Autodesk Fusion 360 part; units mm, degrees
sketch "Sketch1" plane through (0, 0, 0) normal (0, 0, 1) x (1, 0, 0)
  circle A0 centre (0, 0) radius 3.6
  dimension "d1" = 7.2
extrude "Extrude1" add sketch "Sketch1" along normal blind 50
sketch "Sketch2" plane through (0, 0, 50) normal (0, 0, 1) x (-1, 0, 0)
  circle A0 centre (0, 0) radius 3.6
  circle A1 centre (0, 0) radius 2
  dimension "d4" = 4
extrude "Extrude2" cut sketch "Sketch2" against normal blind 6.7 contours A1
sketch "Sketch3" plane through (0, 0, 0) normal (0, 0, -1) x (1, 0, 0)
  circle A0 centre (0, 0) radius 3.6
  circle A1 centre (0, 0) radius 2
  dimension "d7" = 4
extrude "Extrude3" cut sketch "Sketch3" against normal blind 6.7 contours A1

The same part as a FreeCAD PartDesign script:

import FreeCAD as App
import Part
import Sketcher
from FreeCAD import Vector

doc = App.newDocument("Part")
params = doc.addObject("Spreadsheet::Sheet", "Params")
for row, (alias, value) in enumerate([
    ("sketch1_diameter", "7.2 mm"),
    ("pad1_length", "50 mm"),
    ("sketch2_diameter", "4 mm"),
    ("pocket1_length", "6.7 mm"),
    ("sketch3_diameter", "4 mm"),
    ("pocket2_length", "6.7 mm"),
], start=1):
    params.set(f"A{row}", alias)
    params.set(f"B{row}", "=" + value)
    params.setAlias(f"B{row}", alias)

body = doc.addObject("PartDesign::Body", "Body")

sketch1 = body.newObject("Sketcher::SketchObject", "Sketch")
sketch1.AttachmentSupport = (doc.getObject("XY_Plane"), [""])
sketch1.MapMode = "FlatFace"
sketch1.addGeometry(Part.Circle(Vector(0, 0, 0), Vector(0, 0, 1), 3.6), False)
sketch1.addConstraint([
    Sketcher.Constraint("Coincident", 0, 3, -1, 1),
    Sketcher.Constraint("Diameter", 0, 7.2),
])
sketch1.setExpression("Constraints[1]", "Params.sketch1_diameter")
pad1 = body.newObject("PartDesign::Pad", "Pad")
pad1.Profile = sketch1
pad1.setExpression("Length", "Params.pad1_length")

sketch2 = body.newObject("Sketcher::SketchObject", "Sketch001")
sketch2.AttachmentSupport = (doc.getObject("XY_Plane"), [""])
sketch2.MapMode = "FlatFace"
sketch2.AttachmentOffset = App.Placement(Vector(0, 0, 50), App.Rotation())
sketch2.addGeometry(Part.Circle(Vector(0, 0, 0), Vector(0, 0, 1), 2), False)
sketch2.addConstraint([
    Sketcher.Constraint("Coincident", 0, 3, -1, 1),
    Sketcher.Constraint("Diameter", 0, 4.0),
])
sketch2.setExpression("Constraints[1]", "Params.sketch2_diameter")
pocket1 = body.newObject("PartDesign::Pocket", "Pocket")
pocket1.Profile = sketch2
pocket1.setExpression("Length", "Params.pocket1_length")

sketch3 = body.newObject("Sketcher::SketchObject", "Sketch002")
sketch3.AttachmentSupport = (doc.getObject("XY_Plane"), [""])
sketch3.MapMode = "FlatFace"
sketch3.addGeometry(Part.Circle(Vector(0, 0, 0), Vector(0, 0, 1), 2), False)
sketch3.addConstraint([
    Sketcher.Constraint("Coincident", 0, 3, -1, 1),
    Sketcher.Constraint("Diameter", 0, 4.0),
])
sketch3.setExpression("Constraints[1]", "Params.sketch3_diameter")
pocket2 = body.newObject("PartDesign::Pocket", "Pocket001")
pocket2.Profile = sketch3
pocket2.setExpression("Length", "Params.pocket2_length")
pocket2.Reversed = True

doc.recompute()
